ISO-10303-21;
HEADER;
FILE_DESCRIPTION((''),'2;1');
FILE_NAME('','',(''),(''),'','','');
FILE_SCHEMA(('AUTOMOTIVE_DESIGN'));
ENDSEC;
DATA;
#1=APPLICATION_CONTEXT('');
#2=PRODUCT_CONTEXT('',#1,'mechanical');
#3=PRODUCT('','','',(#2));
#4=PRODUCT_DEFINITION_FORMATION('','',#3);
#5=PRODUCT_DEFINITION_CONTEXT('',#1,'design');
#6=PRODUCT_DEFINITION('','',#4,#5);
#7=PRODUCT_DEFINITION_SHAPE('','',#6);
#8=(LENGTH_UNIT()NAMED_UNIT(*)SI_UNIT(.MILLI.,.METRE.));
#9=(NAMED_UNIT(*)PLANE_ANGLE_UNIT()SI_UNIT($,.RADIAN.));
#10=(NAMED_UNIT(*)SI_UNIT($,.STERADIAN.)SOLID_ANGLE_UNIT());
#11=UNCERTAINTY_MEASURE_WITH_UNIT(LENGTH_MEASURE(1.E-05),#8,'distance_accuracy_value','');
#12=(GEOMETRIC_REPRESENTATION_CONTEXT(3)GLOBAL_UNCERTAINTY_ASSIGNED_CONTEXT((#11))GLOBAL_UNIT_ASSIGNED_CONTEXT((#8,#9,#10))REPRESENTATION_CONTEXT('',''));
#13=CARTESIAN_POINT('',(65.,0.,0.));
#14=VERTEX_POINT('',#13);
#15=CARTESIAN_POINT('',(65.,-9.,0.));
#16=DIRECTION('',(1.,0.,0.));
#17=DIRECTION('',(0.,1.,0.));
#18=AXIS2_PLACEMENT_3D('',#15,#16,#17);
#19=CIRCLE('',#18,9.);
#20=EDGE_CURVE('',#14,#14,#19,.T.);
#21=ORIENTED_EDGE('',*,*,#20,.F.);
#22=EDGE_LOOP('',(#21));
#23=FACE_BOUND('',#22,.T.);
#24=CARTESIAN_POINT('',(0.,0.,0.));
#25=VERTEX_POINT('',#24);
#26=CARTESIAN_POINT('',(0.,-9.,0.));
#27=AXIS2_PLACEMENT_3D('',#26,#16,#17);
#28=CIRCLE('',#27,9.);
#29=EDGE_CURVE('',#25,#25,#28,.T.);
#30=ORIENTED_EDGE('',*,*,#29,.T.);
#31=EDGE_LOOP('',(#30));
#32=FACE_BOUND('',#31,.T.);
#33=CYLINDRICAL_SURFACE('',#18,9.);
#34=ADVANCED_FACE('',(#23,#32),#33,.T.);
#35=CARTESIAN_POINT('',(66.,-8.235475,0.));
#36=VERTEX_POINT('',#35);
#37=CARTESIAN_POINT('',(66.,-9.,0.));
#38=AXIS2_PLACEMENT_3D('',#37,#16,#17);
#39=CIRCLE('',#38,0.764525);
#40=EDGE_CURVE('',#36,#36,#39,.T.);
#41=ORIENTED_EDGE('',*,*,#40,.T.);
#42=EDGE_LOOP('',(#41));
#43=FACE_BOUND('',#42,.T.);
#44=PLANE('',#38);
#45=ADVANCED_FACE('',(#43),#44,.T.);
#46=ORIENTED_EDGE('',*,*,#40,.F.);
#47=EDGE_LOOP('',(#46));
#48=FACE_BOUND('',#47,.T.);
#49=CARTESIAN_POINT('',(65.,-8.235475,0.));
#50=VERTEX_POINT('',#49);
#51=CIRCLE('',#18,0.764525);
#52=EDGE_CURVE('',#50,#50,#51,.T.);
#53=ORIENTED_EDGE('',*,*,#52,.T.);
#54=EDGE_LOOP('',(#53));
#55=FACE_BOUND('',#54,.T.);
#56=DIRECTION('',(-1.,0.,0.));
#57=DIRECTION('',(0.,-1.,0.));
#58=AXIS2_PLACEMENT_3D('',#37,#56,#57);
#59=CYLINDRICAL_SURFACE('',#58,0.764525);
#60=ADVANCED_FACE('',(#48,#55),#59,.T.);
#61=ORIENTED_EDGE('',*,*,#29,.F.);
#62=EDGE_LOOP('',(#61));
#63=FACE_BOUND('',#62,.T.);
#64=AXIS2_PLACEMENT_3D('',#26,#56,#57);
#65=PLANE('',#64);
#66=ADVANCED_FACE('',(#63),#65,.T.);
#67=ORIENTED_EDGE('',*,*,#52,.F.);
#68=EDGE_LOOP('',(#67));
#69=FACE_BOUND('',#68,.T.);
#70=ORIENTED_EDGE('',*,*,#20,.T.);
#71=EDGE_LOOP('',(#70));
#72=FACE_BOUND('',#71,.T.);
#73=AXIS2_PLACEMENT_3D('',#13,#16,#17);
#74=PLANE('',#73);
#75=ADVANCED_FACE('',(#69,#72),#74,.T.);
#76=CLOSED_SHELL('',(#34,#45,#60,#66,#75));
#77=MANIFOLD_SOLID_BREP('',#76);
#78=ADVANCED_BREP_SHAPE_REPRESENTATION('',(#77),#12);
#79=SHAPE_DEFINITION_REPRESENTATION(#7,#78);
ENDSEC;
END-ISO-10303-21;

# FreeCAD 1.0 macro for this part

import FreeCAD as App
import Part
import Sketcher
from FreeCAD import Vector

doc = App.newDocument("Part")
body = doc.addObject("PartDesign::Body", "Body")

# Sketch on XY plane
sketch1 = body.newObject("Sketcher::SketchObject", "Sketch")
sketch1.AttachmentSupport = (doc.getObject("XY_Plane"), [""])
sketch1.MapMode = "FlatFace"
sketch1.addGeometry(Part.LineSegment(Vector(0, 0, 0), Vector(0, -9, 0)), False)
sketch1.addGeometry(Part.LineSegment(Vector(0, -9, 0), Vector(65, -9, 0)), False)
sketch1.addGeometry(Part.LineSegment(Vector(65, -9, 0), Vector(65, 0, 0)), False)
sketch1.addGeometry(Part.LineSegment(Vector(65, 0, 0), Vector(0, 0, 0)), False)
sketch1.addGeometry(Part.LineSegment(Vector(65, -9, 0), Vector(0, -9, 0)), True)  # axis
sketch1.addConstraint(Sketcher.Constraint("Coincident", 0, 2, 1, 1))
sketch1.addConstraint(Sketcher.Constraint("Coincident", 1, 2, 2, 1))
sketch1.addConstraint(Sketcher.Constraint("Coincident", 2, 2, 3, 1))
sketch1.addConstraint(Sketcher.Constraint("Coincident", 3, 2, 0, 1))
sketch1.addConstraint(Sketcher.Constraint("Vertical", 0))
sketch1.addConstraint(Sketcher.Constraint("Horizontal", 1))
sketch1.addConstraint(Sketcher.Constraint("Vertical", 2))
sketch1.addConstraint(Sketcher.Constraint("Horizontal", 3))
sketch1.addConstraint(Sketcher.Constraint("Horizontal", 4))
sketch1.addConstraint(Sketcher.Constraint("Coincident", 3, 2, -1, 1))
sketch1.addConstraint(Sketcher.Constraint("Coincident", 4, 1, 1, 2))
sketch1.addConstraint(Sketcher.Constraint("PointOnObject", 4, 2, -2))
sketch1.addConstraint(Sketcher.Constraint("DistanceX", 1, 1, 1, 2, 65.0))
sketch1.addConstraint(Sketcher.Constraint("DistanceY", 0, 2, 0, 1, 9.0))
revolution = body.newObject("PartDesign::Revolution", "Revolution")
revolution.Profile = sketch1
revolution.ReferenceAxis = (sketch1, ["Axis0"])
revolution.Angle = 360

# Sketch on YZ plane
sketch2 = body.newObject("Sketcher::SketchObject", "Sketch001")
sketch2.AttachmentSupport = (doc.getObject("YZ_Plane"), [""])
sketch2.MapMode = "FlatFace"
sketch2.AttachmentOffset = App.Placement(Vector(0, 0, 65), App.Rotation())
sketch2.addGeometry(Part.Circle(Vector(-9, 0, 0), Vector(0, 0, 1), 0.764525), False)
sketch2.addConstraint(Sketcher.Constraint("PointOnObject", 0, 3, -1))
sketch2.addConstraint(Sketcher.Constraint("DistanceX", 0, 3, -1, 1, 9.0))
sketch2.addConstraint(Sketcher.Constraint("Diameter", 0, 1.529051))
pad1 = body.newObject("PartDesign::Pad", "Pad")
pad1.Profile = sketch2
pad1.Length = 1

doc.recompute()
